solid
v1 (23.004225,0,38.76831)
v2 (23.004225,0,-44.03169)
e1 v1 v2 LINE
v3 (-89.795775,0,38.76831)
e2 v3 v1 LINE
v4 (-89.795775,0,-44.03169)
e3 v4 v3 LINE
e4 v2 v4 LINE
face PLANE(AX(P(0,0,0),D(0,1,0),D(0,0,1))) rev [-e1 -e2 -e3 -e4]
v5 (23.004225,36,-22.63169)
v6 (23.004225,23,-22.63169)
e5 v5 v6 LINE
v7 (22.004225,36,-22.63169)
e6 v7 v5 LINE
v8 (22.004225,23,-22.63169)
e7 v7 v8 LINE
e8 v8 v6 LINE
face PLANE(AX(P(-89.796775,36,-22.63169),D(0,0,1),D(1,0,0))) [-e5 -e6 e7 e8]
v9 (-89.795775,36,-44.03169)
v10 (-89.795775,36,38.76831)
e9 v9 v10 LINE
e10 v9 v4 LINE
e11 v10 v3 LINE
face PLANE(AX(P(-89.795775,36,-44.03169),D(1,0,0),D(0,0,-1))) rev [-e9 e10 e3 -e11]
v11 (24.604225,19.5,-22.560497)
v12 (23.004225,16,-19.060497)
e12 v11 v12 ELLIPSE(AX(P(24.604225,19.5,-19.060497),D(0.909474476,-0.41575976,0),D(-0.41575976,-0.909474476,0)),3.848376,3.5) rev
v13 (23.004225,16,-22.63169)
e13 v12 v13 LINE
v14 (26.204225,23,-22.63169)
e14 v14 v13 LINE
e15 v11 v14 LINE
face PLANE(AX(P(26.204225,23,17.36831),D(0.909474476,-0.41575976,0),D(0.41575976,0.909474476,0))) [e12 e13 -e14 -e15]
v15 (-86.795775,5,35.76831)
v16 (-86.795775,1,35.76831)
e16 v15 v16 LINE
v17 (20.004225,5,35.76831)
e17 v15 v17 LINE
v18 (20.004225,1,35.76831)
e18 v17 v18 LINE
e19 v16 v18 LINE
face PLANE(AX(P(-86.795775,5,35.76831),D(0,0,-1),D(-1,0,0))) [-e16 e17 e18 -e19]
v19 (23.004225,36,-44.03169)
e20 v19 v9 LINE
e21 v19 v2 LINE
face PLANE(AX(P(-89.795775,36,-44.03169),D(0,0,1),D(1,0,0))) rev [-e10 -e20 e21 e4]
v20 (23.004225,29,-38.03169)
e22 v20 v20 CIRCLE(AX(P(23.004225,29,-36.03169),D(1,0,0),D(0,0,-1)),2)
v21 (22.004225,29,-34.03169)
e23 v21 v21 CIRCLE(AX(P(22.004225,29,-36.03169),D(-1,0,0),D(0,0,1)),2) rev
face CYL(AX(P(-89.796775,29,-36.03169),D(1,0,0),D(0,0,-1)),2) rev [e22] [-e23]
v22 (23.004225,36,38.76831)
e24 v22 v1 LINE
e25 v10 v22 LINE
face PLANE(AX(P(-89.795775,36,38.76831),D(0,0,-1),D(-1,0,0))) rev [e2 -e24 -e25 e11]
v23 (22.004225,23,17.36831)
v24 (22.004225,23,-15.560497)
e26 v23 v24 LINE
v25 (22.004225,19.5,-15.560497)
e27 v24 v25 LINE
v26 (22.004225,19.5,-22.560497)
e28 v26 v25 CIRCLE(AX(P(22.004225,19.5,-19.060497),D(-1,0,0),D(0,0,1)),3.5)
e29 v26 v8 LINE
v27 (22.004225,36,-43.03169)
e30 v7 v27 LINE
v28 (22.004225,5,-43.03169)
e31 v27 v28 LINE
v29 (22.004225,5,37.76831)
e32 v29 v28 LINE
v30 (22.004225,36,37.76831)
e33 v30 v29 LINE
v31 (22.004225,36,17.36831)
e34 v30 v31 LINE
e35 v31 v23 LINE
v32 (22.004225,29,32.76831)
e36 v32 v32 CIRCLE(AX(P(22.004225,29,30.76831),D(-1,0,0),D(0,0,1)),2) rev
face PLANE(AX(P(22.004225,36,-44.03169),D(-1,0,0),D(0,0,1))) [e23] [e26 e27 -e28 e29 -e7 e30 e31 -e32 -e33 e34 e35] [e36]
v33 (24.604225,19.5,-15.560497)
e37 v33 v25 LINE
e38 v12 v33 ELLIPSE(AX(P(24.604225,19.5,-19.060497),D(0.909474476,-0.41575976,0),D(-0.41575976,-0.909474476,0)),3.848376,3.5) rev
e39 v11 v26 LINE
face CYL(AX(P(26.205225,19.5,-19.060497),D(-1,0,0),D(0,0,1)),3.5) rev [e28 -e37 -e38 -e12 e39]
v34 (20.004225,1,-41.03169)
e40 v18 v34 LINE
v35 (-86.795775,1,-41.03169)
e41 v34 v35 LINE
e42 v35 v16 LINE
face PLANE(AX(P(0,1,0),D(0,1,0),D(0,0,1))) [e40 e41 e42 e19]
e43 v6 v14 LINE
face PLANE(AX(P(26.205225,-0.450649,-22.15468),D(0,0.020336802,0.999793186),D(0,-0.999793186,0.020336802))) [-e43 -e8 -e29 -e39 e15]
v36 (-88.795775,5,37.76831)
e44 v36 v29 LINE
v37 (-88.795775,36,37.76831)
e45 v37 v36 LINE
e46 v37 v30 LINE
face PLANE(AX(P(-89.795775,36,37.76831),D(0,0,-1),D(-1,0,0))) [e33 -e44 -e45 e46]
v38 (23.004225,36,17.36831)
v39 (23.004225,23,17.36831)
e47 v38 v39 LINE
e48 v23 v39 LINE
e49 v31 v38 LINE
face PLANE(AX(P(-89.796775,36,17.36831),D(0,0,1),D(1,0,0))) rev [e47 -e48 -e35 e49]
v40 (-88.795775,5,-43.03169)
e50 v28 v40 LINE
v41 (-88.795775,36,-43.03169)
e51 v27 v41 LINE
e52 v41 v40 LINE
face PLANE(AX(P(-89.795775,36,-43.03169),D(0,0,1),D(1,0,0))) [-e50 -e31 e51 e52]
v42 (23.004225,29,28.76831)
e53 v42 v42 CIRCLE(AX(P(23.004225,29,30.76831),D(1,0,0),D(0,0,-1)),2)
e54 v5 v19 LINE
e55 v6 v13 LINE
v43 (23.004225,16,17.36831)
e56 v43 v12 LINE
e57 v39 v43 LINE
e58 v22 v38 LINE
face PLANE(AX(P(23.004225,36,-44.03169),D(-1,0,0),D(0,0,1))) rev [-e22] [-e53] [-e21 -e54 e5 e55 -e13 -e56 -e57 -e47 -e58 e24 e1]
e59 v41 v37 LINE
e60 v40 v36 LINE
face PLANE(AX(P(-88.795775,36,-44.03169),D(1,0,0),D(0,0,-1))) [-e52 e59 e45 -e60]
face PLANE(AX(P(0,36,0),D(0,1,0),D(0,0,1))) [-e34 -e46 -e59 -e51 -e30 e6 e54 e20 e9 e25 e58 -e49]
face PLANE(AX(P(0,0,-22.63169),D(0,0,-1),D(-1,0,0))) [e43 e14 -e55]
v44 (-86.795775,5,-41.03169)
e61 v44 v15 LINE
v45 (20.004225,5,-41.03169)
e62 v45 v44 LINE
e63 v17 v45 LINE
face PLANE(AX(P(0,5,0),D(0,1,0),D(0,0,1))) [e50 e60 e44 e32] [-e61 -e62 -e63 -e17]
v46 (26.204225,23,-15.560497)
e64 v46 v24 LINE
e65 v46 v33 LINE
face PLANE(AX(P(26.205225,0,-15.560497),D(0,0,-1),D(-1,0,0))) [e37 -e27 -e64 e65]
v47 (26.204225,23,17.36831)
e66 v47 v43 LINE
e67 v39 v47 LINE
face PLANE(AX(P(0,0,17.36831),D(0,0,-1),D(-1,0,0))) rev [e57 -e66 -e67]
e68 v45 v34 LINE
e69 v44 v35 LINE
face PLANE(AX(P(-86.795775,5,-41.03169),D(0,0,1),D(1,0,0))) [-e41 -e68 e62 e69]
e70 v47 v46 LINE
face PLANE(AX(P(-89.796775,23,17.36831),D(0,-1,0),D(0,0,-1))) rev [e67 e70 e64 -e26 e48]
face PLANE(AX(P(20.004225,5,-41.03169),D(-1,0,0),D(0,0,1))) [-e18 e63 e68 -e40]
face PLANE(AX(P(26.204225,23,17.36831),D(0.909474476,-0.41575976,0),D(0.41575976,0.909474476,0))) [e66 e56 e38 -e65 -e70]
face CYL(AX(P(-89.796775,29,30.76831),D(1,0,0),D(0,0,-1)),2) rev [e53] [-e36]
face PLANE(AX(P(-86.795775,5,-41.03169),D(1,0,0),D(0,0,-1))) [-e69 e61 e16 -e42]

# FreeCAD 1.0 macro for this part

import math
import FreeCAD as App
import Part
import Sketcher
Q = App.Units.Quantity


def faces_at(feature, points):
    """Names of the faces that lie closest to the given points."""
    faces = feature.Shape.Faces
    near = lambda p: min(range(len(faces)), key=lambda i: faces[i].distToShape(Part.Vertex(*p))[0])
    return sorted({f"Face{near(p) + 1}" for p in points})

doc = App.newDocument("Part")
body = doc.addObject("PartDesign::Body", "Body")

sketch1 = doc.addObject("Sketcher::SketchObject", "Sketch")
body.addObject(sketch1)
sketch1.AttachmentSupport = (doc.XZ_Plane, [""])
sketch1.MapMode = "FlatFace"
sketch1.addGeometry(Part.LineSegment(App.Vector(-90, -44, 0), App.Vector(-90, 39, 0)), False)
sketch1.addGeometry(Part.LineSegment(App.Vector(-90, 39, 0), App.Vector(23, 39, 0)), False)
sketch1.addGeometry(Part.LineSegment(App.Vector(23, 39, 0), App.Vector(23, -44, 0)), False)
sketch1.addGeometry(Part.LineSegment(App.Vector(23, -44, 0), App.Vector(-90, -44, 0)), False)
sketch1.addConstraint(Sketcher.Constraint("Coincident", 0, 2, 1, 1))
sketch1.addConstraint(Sketcher.Constraint("Coincident", 1, 2, 2, 1))
sketch1.addConstraint(Sketcher.Constraint("Coincident", 2, 2, 3, 1))
sketch1.addConstraint(Sketcher.Constraint("Coincident", 3, 2, 0, 1))
sketch1.addConstraint(Sketcher.Constraint("Vertical", 0))
sketch1.addConstraint(Sketcher.Constraint("Horizontal", 1))
sketch1.addConstraint(Sketcher.Constraint("Vertical", 2))
sketch1.addConstraint(Sketcher.Constraint("Horizontal", 3))
sketch1.addConstraint(Sketcher.Constraint("DistanceX", 1, 1, 1, 2, Q("112.8 mm")))
sketch1.addConstraint(Sketcher.Constraint("DistanceY", 0, 1, 0, 2, Q("82.8 mm")))
sketch1.addConstraint(Sketcher.Constraint("DistanceY", -1, 1, 0, 2, Q("38.76831 mm")))
sketch1.addConstraint(Sketcher.Constraint("DistanceX", 0, 2, -1, 1, Q("89.795775 mm")))
pad1 = doc.addObject("PartDesign::Pad", "Pad")
body.addObject(pad1)
pad1.Profile = sketch1
pad1.Length = 36
pad1.Reversed = True
doc.recompute()

thickness = doc.addObject("PartDesign::Thickness", "Thickness")
body.addObject(thickness)
thickness.Base = (pad1, faces_at(pad1, [(-33.396, 36, -2.632)]))
thickness.Value = 1
thickness.Reversed = True
thickness.Join = "Intersection"

sketch2 = doc.addObject("Sketcher::SketchObject", "Sketch001")
body.addObject(sketch2)
sketch2.AttachmentSupport = (doc.XZ_Plane, [""])
sketch2.MapMode = "FlatFace"
sketch2.AttachmentOffset = App.Placement(App.Vector(0, 0, -1), App.Rotation())
sketch2.addGeometry(Part.LineSegment(App.Vector(-89, -43, 0), App.Vector(-89, 38, 0)), False)
sketch2.addGeometry(Part.LineSegment(App.Vector(-89, 38, 0), App.Vector(22, 38, 0)), False)
sketch2.addGeometry(Part.LineSegment(App.Vector(22, 38, 0), App.Vector(22, -43, 0)), False)
sketch2.addGeometry(Part.LineSegment(App.Vector(22, -43, 0), App.Vector(-89, -43, 0)), False)
sketch2.addGeometry(Part.LineSegment(App.Vector(20, 36, 0), App.Vector(-87, 36, 0)), False)
sketch2.addGeometry(Part.LineSegment(App.Vector(-87, 36, 0), App.Vector(-87, -41, 0)), False)
sketch2.addGeometry(Part.LineSegment(App.Vector(-87, -41, 0), App.Vector(20, -41, 0)), False)
sketch2.addGeometry(Part.LineSegment(App.Vector(20, -41, 0), App.Vector(20, 36, 0)), False)
sketch2.addConstraint(Sketcher.Constraint("Coincident", 0, 2, 1, 1))
sketch2.addConstraint(Sketcher.Constraint("Coincident", 1, 2, 2, 1))
sketch2.addConstraint(Sketcher.Constraint("Coincident", 2, 2, 3, 1))
sketch2.addConstraint(Sketcher.Constraint("Coincident", 3, 2, 0, 1))
sketch2.addConstraint(Sketcher.Constraint("Coincident", 4, 2, 5, 1))
sketch2.addConstraint(Sketcher.Constraint("Coincident", 5, 2, 6, 1))
sketch2.addConstraint(Sketcher.Constraint("Coincident", 6, 2, 7, 1))
sketch2.addConstraint(Sketcher.Constraint("Coincident", 7, 2, 4, 1))
sketch2.addConstraint(Sketcher.Constraint("Vertical", 0))
sketch2.addConstraint(Sketcher.Constraint("Horizontal", 1))
sketch2.addConstraint(Sketcher.Constraint("Vertical", 2))
sketch2.addConstraint(Sketcher.Constraint("Horizontal", 3))
sketch2.addConstraint(Sketcher.Constraint("Horizontal", 4))
sketch2.addConstraint(Sketcher.Constraint("Vertical", 5))
sketch2.addConstraint(Sketcher.Constraint("Horizontal", 6))
sketch2.addConstraint(Sketcher.Constraint("Vertical", 7))
sketch2.addConstraint(Sketcher.Constraint("DistanceX", 1, 1, 1, 2, Q("110.8 mm")))
sketch2.addConstraint(Sketcher.Constraint("DistanceX", 4, 2, 4, 1, Q("106.8 mm")))
sketch2.addConstraint(Sketcher.Constraint("DistanceY", 0, 1, 0, 2, Q("80.8 mm")))
sketch2.addConstraint(Sketcher.Constraint("DistanceY", 5, 2, 5, 1, Q("76.8 mm")))
sketch2.addConstraint(Sketcher.Constraint("DistanceX", 0, 2, 4, 2, Q("2 mm")))
sketch2.addConstraint(Sketcher.Constraint("DistanceY", 4, 2, 0, 2, Q("2 mm")))
sketch2.addConstraint(Sketcher.Constraint("DistanceY", -1, 1, 0, 2, Q("37.76831 mm")))
sketch2.addConstraint(Sketcher.Constraint("DistanceX", 0, 2, -1, 1, Q("88.795775 mm")))
pad2 = doc.addObject("PartDesign::Pad", "Pad001")
body.addObject(pad2)
pad2.Profile = sketch2
pad2.Length = 4
pad2.Reversed = True

sketch3 = doc.addObject("Sketcher::SketchObject", "Sketch002")
body.addObject(sketch3)
sketch3.AttachmentSupport = (doc.YZ_Plane, [""])
sketch3.MapMode = "FlatFace"
sketch3.AttachmentOffset = App.Placement(App.Vector(0, 0, 23.004225), App.Rotation())
sketch3.addGeometry(Part.LineSegment(App.Vector(36, 17, 0), App.Vector(23, 17, 0)), False)
sketch3.addGeometry(Part.LineSegment(App.Vector(23, 17, 0), App.Vector(23, -23, 0)), False)
sketch3.addGeometry(Part.LineSegment(App.Vector(23, -23, 0), App.Vector(36, -23, 0)), False)
sketch3.addGeometry(Part.LineSegment(App.Vector(36, -23, 0), App.Vector(36, 17, 0)), False)
sketch3.addConstraint(Sketcher.Constraint("Coincident", 0, 2, 1, 1))
sketch3.addConstraint(Sketcher.Constraint("Coincident", 1, 2, 2, 1))
sketch3.addConstraint(Sketcher.Constraint("Coincident", 2, 2, 3, 1))
sketch3.addConstraint(Sketcher.Constraint("Coincident", 3, 2, 0, 1))
sketch3.addConstraint(Sketcher.Constraint("Horizontal", 0))
sketch3.addConstraint(Sketcher.Constraint("Vertical", 1))
sketch3.addConstraint(Sketcher.Constraint("Horizontal", 2))
sketch3.addConstraint(Sketcher.Constraint("Vertical", 3))
sketch3.addConstraint(Sketcher.Constraint("DistanceX", 0, 2, 0, 1, Q("13 mm")))
sketch3.addConstraint(Sketcher.Constraint("DistanceY", 1, 2, 1, 1, Q("40 mm")))
sketch3.addConstraint(Sketcher.Constraint("DistanceX", -1, 1, 0, 2, Q("23 mm")))
sketch3.addConstraint(Sketcher.Constraint("DistanceY", -1, 1, 0, 2, Q("17.36831 mm")))
pocket1 = doc.addObject("PartDesign::Pocket", "Pocket")
body.addObject(pocket1)
pocket1.Profile = sketch3
pocket1.Type = "UpToFirst"

sketch4 = doc.addObject("Sketcher::SketchObject", "Sketch003")
body.addObject(sketch4)
sketch4.AttachmentSupport = (doc.XY_Plane, [""])
sketch4.MapMode = "FlatFace"
sketch4.AttachmentOffset = App.Placement(App.Vector(0, 0, -22.63169), App.Rotation())
sketch4.addGeometry(Part.LineSegment(App.Vector(23, 23, 0), App.Vector(23, 16, 0)), False)
sketch4.addGeometry(Part.LineSegment(App.Vector(23, 16, 0), App.Vector(26.2, 23, 0)), False)
sketch4.addGeometry(Part.LineSegment(App.Vector(26.2, 23, 0), App.Vector(23, 23, 0)), False)
sketch4.addConstraint(Sketcher.Constraint("Coincident", 0, 2, 1, 1))
sketch4.addConstraint(Sketcher.Constraint("Coincident", 1, 2, 2, 1))
sketch4.addConstraint(Sketcher.Constraint("Coincident", 2, 2, 0, 1))
sketch4.addConstraint(Sketcher.Constraint("Vertical", 0))
sketch4.addConstraint(Sketcher.Constraint("Horizontal", 2))
sketch4.addConstraint(Sketcher.Constraint("DistanceY", 0, 2, 0, 1, Q("7 mm")))
sketch4.addConstraint(Sketcher.Constraint("DistanceX", 2, 2, 2, 1, Q("3.2 mm")))
sketch4.addConstraint(Sketcher.Constraint("DistanceY", -1, 1, 0, 2, Q("16 mm")))
sketch4.addConstraint(Sketcher.Constraint("DistanceX", -1, 1, 0, 2, Q("23.004225 mm")))
pad3 = doc.addObject("PartDesign::Pad", "Pad002")
body.addObject(pad3)
pad3.Profile = sketch4
pad3.Length = 40

sketch5 = doc.addObject("Sketcher::SketchObject", "Sketch004")
body.addObject(sketch5)
sketch5.AttachmentSupport = (doc.YZ_Plane, [""])
sketch5.MapMode = "FlatFace"
sketch5.AttachmentOffset = App.Placement(App.Vector(0, 0, 22.004225), App.Rotation())
sketch5.addGeometry(Part.LineSegment(App.Vector(23, -22.6, 0), App.Vector(19.5, -22.6, 0)), False)
sketch5.addGeometry(Part.ArcOfCircle(Part.Circle(App.Vector(19.5, -19.1, 0), App.Vector(0, 0, 1), 3.5), math.radians(90), math.radians(270)), False)
sketch5.addGeometry(Part.LineSegment(App.Vector(19.5, -15.6, 0), App.Vector(23, -15.6, 0)), False)
sketch5.addGeometry(Part.LineSegment(App.Vector(23, -15.6, 0), App.Vector(23, -22.6, 0)), False)
sketch5.addConstraint(Sketcher.Constraint("Coincident", 0, 2, 1, 2))
sketch5.addConstraint(Sketcher.Constraint("Tangent", 1, 1, 2, 1))
sketch5.addConstraint(Sketcher.Constraint("Coincident", 2, 2, 3, 1))
sketch5.addConstraint(Sketcher.Constraint("Coincident", 3, 2, 0, 1))
sketch5.addConstraint(Sketcher.Constraint("Horizontal", 2))
sketch5.addConstraint(Sketcher.Constraint("Vertical", 3))
sketch5.addConstraint(Sketcher.Constraint("Vertical", 1, 3, 0, 2))
sketch5.addConstraint(Sketcher.Constraint("Radius", 1, Q("3.5 mm")))
sketch5.addConstraint(Sketcher.Constraint("DistanceX", 2, 1, 2, 2, Q("3.5 mm")))
sketch5.addConstraint(Sketcher.Constraint("DistanceX", -1, 1, 2, 2, Q("23 mm")))
sketch5.addConstraint(Sketcher.Constraint("DistanceY", 3, 2, 3, 1, Q("7.071194 mm")))
sketch5.addConstraint(Sketcher.Constraint("DistanceY", 3, 2, -1, 1, Q("22.63169 mm")))
pocket2 = doc.addObject("PartDesign::Pocket", "Pocket001")
body.addObject(pocket2)
pocket2.Profile = sketch5
pocket2.Type = "UpToFirst"
pocket2.Reversed = True

sketch6 = doc.addObject("Sketcher::SketchObject", "Sketch005")
body.addObject(sketch6)
sketch6.AttachmentSupport = (doc.YZ_Plane, [""])
sketch6.MapMode = "FlatFace"
sketch6.AttachmentOffset = App.Placement(App.Vector(0, 0, 23.004225), App.Rotation())
sketch6.addGeometry(Part.Circle(App.Vector(29, -36, 0), App.Vector(0, 0, 1), 2), False)
sketch6.addConstraint(Sketcher.Constraint("Diameter", 0, Q("4 mm")))
sketch6.addConstraint(Sketcher.Constraint("DistanceX", -1, 1, 0, 3, Q("29 mm")))
sketch6.addConstraint(Sketcher.Constraint("DistanceY", 0, 3, -1, 1, Q("36.03169 mm")))
pocket3 = doc.addObject("PartDesign::Pocket", "Pocket002")
body.addObject(pocket3)
pocket3.Profile = sketch6
pocket3.Type = "UpToFirst"

sketch7 = doc.addObject("Sketcher::SketchObject", "Sketch006")
body.addObject(sketch7)
sketch7.AttachmentSupport = (doc.YZ_Plane, [""])
sketch7.MapMode = "FlatFace"
sketch7.AttachmentOffset = App.Placement(App.Vector(0, 0, 23.004225), App.Rotation())
sketch7.addGeometry(Part.Circle(App.Vector(29, 30.8, 0), App.Vector(0, 0, 1), 2), False)
sketch7.addConstraint(Sketcher.Constraint("Diameter", 0, Q("4 mm")))
sketch7.addConstraint(Sketcher.Constraint("DistanceX", -1, 1, 0, 3, Q("29 mm")))
sketch7.addConstraint(Sketcher.Constraint("DistanceY", -1, 1, 0, 3, Q("30.76831 mm")))
pocket4 = doc.addObject("PartDesign::Pocket", "Pocket003")
body.addObject(pocket4)
pocket4.Profile = sketch7
pocket4.Type = "UpToFirst"

doc.recompute()
